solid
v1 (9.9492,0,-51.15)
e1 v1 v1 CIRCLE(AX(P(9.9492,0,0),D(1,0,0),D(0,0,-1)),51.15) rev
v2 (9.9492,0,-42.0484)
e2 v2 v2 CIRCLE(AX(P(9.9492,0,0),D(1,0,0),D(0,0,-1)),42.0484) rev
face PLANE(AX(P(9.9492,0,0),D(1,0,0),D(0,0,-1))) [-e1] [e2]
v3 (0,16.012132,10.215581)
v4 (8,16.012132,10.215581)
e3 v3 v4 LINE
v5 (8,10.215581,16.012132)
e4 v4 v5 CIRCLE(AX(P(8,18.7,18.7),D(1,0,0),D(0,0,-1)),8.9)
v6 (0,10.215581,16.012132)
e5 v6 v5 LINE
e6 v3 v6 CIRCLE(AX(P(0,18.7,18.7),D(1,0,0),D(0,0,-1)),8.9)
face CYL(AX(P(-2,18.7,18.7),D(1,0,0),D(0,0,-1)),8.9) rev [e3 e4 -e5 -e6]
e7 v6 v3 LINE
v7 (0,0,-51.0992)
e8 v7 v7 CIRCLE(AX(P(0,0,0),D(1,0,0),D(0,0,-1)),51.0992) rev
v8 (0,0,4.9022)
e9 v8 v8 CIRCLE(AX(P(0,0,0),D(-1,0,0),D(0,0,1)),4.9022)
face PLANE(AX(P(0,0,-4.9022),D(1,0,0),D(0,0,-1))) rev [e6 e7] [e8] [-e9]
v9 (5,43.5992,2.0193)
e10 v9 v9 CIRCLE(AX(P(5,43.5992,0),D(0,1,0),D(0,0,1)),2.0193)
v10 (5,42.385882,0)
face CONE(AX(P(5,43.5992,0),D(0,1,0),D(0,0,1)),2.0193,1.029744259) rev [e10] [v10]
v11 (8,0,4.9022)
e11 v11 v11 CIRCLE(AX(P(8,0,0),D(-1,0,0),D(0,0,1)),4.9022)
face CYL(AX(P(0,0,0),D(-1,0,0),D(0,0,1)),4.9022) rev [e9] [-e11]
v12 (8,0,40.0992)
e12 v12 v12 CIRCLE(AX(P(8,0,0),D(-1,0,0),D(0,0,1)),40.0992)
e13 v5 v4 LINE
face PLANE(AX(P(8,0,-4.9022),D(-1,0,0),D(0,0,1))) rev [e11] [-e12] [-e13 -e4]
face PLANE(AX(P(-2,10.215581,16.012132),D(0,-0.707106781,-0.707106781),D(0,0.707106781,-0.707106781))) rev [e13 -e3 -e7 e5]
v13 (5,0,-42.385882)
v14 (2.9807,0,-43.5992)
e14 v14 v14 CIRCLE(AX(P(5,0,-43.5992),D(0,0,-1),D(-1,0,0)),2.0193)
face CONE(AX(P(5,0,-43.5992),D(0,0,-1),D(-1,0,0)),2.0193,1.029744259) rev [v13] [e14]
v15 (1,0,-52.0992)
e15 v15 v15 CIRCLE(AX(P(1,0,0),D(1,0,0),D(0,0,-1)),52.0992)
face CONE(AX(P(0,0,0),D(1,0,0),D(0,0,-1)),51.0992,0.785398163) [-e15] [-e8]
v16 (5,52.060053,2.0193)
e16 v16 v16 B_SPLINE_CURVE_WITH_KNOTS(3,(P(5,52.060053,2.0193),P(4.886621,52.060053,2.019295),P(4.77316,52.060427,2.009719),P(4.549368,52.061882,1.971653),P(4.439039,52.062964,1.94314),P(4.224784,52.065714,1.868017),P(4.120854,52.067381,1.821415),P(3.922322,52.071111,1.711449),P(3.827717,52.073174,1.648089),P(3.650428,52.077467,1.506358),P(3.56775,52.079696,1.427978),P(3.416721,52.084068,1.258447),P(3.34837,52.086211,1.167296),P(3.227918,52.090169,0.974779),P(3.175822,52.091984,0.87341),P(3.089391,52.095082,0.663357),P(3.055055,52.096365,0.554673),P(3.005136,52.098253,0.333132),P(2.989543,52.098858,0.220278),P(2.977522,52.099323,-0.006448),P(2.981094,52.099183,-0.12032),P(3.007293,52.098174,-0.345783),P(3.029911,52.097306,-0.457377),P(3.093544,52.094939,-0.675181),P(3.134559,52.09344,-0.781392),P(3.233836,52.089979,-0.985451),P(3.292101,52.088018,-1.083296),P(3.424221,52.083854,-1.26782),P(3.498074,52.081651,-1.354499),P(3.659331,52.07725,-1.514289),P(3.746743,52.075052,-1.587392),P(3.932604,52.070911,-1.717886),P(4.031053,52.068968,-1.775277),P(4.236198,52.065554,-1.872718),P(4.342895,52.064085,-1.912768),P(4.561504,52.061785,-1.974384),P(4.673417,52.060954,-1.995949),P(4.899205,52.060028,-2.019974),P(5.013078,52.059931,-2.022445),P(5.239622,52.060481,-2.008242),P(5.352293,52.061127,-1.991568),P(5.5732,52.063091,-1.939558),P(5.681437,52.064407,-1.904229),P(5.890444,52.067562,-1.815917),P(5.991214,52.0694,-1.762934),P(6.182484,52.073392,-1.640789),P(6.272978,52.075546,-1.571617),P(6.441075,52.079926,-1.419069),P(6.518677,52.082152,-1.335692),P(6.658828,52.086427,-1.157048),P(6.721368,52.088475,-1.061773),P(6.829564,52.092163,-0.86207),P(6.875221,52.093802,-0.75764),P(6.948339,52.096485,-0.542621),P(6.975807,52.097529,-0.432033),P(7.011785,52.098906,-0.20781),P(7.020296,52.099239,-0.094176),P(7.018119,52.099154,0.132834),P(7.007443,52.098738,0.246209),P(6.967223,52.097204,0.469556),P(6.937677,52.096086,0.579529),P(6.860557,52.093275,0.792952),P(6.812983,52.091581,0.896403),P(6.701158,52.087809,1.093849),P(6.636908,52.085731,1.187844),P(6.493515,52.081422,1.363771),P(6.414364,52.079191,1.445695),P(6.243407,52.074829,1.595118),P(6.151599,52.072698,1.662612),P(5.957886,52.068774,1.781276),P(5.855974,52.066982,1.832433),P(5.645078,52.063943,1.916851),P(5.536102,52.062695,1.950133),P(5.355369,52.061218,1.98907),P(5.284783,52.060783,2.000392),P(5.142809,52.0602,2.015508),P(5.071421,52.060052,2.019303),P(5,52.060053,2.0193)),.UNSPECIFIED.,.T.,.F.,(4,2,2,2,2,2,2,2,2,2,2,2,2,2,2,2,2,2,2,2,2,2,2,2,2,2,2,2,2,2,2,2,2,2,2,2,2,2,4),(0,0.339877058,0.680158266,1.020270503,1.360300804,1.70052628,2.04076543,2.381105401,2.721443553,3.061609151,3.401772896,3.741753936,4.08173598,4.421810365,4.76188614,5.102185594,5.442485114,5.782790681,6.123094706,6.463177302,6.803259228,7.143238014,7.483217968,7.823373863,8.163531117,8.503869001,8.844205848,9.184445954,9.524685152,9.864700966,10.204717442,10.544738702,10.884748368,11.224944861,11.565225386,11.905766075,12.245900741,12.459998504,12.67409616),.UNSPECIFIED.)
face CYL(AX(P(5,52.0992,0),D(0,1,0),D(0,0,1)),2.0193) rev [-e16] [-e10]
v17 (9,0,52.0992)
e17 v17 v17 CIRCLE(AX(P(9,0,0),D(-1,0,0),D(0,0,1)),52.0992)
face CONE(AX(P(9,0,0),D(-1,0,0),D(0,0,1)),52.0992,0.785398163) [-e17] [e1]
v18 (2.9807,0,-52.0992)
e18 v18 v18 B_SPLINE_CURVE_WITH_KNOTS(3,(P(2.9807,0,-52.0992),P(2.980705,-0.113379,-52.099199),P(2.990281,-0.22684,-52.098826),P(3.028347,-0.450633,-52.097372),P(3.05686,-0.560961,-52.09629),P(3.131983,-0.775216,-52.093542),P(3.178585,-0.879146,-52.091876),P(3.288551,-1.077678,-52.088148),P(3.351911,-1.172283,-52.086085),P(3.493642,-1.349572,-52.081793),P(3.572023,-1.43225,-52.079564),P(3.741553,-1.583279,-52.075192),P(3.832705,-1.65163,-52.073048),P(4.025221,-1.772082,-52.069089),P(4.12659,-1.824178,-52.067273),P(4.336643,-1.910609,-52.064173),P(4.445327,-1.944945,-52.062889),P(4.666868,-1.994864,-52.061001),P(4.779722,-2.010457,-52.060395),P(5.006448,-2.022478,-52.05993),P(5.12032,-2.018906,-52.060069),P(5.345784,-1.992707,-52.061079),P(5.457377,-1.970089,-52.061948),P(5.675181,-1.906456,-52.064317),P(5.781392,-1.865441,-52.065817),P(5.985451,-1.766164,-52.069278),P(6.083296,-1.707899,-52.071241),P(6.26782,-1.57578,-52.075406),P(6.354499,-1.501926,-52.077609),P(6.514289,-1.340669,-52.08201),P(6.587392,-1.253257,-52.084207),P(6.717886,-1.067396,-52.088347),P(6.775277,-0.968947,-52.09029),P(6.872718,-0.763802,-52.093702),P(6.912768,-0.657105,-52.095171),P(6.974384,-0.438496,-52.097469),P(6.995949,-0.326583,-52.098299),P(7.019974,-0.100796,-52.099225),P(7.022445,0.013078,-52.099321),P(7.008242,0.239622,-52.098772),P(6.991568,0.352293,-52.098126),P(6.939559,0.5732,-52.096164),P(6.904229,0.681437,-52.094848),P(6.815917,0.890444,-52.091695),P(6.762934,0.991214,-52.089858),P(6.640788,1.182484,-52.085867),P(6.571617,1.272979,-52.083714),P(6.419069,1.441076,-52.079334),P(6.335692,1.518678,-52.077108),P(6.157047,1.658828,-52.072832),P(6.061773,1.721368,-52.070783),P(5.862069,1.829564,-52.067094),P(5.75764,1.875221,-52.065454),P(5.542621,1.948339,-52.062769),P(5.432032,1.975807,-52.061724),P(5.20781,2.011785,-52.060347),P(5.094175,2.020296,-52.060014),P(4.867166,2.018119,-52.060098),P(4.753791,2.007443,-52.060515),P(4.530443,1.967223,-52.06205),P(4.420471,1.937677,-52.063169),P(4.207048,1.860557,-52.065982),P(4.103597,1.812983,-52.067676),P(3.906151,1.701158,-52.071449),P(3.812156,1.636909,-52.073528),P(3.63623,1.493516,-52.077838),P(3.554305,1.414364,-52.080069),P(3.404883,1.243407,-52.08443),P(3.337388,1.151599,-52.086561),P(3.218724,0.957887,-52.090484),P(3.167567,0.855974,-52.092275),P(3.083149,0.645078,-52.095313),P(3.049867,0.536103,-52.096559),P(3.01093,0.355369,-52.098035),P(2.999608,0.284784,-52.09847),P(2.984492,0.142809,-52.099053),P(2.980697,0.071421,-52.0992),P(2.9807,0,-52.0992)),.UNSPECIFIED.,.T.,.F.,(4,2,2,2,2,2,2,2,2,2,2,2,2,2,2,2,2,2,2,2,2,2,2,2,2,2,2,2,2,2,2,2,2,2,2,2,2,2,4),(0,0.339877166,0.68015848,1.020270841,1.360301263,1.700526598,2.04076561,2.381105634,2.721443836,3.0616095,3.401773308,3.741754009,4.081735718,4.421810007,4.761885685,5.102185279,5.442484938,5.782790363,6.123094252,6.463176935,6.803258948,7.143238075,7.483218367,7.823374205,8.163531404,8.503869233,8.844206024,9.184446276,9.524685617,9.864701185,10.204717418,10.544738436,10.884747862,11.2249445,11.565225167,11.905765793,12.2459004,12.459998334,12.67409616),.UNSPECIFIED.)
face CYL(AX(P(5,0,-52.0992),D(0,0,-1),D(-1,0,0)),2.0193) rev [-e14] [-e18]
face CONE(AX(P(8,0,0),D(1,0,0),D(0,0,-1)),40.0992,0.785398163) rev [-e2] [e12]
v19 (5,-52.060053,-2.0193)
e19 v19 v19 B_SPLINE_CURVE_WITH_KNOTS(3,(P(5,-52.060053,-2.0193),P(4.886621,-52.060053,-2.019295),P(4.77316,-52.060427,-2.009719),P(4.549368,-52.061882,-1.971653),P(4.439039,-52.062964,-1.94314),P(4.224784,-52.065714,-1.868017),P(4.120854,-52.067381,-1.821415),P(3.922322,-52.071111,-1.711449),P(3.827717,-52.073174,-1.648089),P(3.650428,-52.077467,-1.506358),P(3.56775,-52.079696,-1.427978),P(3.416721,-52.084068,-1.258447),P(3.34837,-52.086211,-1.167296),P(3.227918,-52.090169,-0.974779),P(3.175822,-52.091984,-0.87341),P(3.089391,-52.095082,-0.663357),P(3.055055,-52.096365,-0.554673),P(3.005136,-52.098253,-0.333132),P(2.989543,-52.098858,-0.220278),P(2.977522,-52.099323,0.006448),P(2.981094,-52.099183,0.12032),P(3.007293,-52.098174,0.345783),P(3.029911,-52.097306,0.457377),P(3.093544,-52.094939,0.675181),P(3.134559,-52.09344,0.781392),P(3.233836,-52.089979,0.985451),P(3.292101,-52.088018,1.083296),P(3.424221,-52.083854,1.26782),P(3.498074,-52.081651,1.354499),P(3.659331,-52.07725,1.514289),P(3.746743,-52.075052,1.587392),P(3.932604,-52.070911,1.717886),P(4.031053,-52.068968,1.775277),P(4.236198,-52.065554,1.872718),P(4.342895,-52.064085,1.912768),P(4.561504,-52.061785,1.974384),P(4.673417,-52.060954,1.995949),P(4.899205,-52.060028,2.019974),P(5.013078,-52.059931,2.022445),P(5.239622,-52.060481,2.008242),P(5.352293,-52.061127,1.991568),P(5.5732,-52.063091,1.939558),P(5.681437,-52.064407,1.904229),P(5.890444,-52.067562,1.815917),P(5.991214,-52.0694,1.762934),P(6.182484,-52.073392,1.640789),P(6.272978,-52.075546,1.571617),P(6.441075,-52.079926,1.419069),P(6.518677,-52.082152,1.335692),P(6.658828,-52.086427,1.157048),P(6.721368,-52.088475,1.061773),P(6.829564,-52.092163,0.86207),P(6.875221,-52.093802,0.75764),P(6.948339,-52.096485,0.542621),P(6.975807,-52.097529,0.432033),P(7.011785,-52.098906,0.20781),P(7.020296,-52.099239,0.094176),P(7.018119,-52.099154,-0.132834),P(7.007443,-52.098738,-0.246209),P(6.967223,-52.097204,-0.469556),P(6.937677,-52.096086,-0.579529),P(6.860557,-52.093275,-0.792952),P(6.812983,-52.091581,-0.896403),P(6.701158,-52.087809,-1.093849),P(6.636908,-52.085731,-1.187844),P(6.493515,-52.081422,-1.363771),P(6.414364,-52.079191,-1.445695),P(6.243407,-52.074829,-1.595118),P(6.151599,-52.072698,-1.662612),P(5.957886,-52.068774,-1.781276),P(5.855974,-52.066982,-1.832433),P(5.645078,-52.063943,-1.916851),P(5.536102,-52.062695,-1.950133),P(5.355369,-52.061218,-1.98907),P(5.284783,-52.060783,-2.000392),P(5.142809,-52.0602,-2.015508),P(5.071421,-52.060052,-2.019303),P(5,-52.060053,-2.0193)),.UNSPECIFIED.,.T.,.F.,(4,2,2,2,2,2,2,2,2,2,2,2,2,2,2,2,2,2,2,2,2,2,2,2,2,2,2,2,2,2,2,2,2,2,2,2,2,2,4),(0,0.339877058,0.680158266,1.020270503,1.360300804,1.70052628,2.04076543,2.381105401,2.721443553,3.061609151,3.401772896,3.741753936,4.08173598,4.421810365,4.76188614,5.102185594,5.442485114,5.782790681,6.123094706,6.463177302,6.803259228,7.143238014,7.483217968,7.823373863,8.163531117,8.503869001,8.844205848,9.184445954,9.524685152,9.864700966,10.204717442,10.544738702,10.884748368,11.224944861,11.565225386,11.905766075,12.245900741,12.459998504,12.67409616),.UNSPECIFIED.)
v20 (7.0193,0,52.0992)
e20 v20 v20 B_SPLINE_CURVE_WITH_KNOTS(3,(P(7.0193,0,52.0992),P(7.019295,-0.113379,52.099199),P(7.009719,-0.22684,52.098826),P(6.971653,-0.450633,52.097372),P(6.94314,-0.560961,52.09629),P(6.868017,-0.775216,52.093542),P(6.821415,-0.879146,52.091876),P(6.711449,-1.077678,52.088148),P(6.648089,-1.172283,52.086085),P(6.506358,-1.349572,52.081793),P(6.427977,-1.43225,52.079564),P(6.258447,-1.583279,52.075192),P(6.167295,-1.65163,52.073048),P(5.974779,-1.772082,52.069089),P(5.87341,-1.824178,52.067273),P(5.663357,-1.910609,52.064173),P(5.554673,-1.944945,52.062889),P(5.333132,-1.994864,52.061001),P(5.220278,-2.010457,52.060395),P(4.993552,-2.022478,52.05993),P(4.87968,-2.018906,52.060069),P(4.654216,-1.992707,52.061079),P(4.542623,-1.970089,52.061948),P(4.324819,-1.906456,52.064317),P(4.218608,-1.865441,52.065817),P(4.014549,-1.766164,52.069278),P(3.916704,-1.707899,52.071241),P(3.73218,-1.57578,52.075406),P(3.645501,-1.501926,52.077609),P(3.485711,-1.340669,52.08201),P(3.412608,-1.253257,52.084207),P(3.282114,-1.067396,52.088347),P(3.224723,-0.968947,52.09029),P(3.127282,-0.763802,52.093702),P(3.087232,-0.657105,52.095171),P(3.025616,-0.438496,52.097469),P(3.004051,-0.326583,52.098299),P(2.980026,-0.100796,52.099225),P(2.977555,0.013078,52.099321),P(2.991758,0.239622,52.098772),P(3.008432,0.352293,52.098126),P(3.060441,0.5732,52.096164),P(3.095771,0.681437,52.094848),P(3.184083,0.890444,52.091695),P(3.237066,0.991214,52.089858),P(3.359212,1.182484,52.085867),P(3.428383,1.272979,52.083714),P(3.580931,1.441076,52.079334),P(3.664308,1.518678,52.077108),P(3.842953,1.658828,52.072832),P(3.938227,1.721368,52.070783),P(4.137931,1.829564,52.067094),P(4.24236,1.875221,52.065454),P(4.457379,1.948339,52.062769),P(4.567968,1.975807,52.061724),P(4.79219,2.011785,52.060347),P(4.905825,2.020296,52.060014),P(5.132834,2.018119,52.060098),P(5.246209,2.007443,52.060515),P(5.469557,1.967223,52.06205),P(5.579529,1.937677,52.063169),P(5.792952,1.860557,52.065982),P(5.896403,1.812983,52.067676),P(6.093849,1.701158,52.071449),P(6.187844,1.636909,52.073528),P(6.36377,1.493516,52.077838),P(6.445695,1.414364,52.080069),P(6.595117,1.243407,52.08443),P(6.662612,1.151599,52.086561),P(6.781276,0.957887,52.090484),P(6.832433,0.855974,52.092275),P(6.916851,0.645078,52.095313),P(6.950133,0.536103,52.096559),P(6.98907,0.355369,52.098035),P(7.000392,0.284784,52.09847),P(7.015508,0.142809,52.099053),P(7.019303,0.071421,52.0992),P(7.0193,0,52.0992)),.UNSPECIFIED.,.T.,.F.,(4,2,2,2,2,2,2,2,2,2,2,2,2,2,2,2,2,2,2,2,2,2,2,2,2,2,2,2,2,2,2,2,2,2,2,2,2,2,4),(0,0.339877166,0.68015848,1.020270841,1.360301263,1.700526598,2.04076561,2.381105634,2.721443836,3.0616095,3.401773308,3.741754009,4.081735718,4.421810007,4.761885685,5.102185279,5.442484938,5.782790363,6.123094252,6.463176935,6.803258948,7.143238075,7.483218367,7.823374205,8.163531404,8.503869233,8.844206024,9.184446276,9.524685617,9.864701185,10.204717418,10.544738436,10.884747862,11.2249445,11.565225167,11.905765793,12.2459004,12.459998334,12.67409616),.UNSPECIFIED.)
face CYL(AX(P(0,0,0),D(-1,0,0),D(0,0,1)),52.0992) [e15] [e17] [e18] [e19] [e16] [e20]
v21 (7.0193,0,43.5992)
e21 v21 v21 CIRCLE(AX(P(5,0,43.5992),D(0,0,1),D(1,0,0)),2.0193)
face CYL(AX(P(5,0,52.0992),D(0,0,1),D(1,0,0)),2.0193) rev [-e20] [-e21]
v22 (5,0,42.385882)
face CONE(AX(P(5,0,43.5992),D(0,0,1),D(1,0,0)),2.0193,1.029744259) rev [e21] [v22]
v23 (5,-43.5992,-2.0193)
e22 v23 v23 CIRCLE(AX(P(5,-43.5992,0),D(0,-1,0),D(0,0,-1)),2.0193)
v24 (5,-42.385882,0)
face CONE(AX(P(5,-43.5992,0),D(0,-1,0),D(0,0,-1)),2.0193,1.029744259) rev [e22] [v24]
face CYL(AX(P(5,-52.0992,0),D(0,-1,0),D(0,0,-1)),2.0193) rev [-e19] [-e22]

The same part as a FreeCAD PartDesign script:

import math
import FreeCAD as App
import Part
import Sketcher
Q = App.Units.Quantity


def edges_at(feature, points):
    """Names of the edges that pass closest to the given points."""
    edges = feature.Shape.Edges
    near = lambda p: min(range(len(edges)), key=lambda i: edges[i].distToShape(Part.Vertex(*p))[0])
    return sorted({f"Edge{near(p) + 1}" for p in points})

doc = App.newDocument("Part")
body = doc.addObject("PartDesign::Body", "Body")

# Sketch on XZ plane
sketch1 = body.newObject("Sketcher::SketchObject", "Sketch")
sketch1.AttachmentSupport = (doc.getObject("XZ_Plane"), [""])
sketch1.MapMode = "FlatFace"
sketch1.addGeometry([
    Part.LineSegment(App.Vector(0, -52.1, 0), App.Vector(0, -4.9, 0)),  # 0
    Part.LineSegment(App.Vector(0, -4.9, 0), App.Vector(8, -4.9, 0)),  # 1
    Part.LineSegment(App.Vector(8, -4.9, 0), App.Vector(8, -40.1, 0)),  # 2
    Part.LineSegment(App.Vector(8, -40.1, 0), App.Vector(10, -42.1, 0)),  # 3
    Part.LineSegment(App.Vector(10, -42.1, 0), App.Vector(10, -52.1, 0)),  # 4
    Part.LineSegment(App.Vector(10, -52.1, 0), App.Vector(0, -52.1, 0)),  # 5
], False)
sketch1.addConstraint([
    Sketcher.Constraint("Coincident", 0, 2, 1, 1),
    Sketcher.Constraint("Coincident", 1, 2, 2, 1),
    Sketcher.Constraint("Coincident", 2, 2, 3, 1),
    Sketcher.Constraint("Coincident", 3, 2, 4, 1),
    Sketcher.Constraint("Coincident", 4, 2, 5, 1),
    Sketcher.Constraint("Coincident", 5, 2, 0, 1),
    Sketcher.Constraint("Vertical", 0),
    Sketcher.Constraint("Horizontal", 1),
    Sketcher.Constraint("Vertical", 2),
    Sketcher.Constraint("Vertical", 4),
    Sketcher.Constraint("Horizontal", 5),
    Sketcher.Constraint("PointOnObject", 0, 2, -2),
    Sketcher.Constraint("Equal", 5, 4),
    Sketcher.Constraint("DistanceX", 1, 1, 1, 2, Q("8 mm")),
    Sketcher.Constraint("DistanceX", 5, 2, 5, 1, Q("10 mm")),
    Sketcher.Constraint("Angle", 3, Q("-45 deg")),
    Sketcher.Constraint("DistanceY", 0, 1, 0, 2, Q("47.197 mm")),
    Sketcher.Constraint("DistanceY", 0, 2, -1, 1, Q("4.9022 mm")),
])
revolution = body.newObject("PartDesign::Revolution", "Revolution")
revolution.Profile = sketch1
revolution.ReferenceAxis = (sketch1, ["H_Axis"])
revolution.Angle = 360

# Sketch on YZ plane
sketch2 = body.newObject("Sketcher::SketchObject", "Sketch001")
sketch2.AttachmentSupport = (doc.getObject("YZ_Plane"), [""])
sketch2.MapMode = "FlatFace"
sketch2.AttachmentOffset = App.Placement(App.Vector(0, 0, 8), App.Rotation())
sketch2.addGeometry([
    Part.LineSegment(App.Vector(10, 16, 0), App.Vector(16, 10, 0)),
    Part.ArcOfCircle(Part.Circle(App.Vector(19, 19, 0), App.Vector(0, 0, 1), 9), math.radians(-108), math.radians(45)),
    Part.ArcOfCircle(Part.Circle(App.Vector(19, 19, 0), App.Vector(0, 0, 1), 9), math.radians(45), math.radians(198)),
], False)
sketch2.addConstraint([
    Sketcher.Constraint("Coincident", 0, 2, 1, 1),
    Sketcher.Constraint("Tangent", 1, 2, 2, 1),
    Sketcher.Constraint("Coincident", 2, 2, 0, 1),
    Sketcher.Constraint("Equal", 1, 2),
    Sketcher.Constraint("Radius", 1, Q("8.9 mm")),
    Sketcher.Constraint("Angle", 0, Q("-45 deg")),
    Sketcher.Constraint("DistanceX", -1, 1, 1, 3, Q("18.7 mm")),
    Sketcher.Constraint("DistanceY", -1, 1, 1, 3, Q("18.7 mm")),
    Sketcher.Constraint("Distance", 0, Q("8.197561 mm")),
    Sketcher.Constraint("DistanceX", -1, 1, 1, 2, Q("24.99325 mm")),
])
pocket1 = body.newObject("PartDesign::Pocket", "Pocket")
pocket1.Profile = sketch2
pocket1.Length = 10

# Sketch on YZ plane
sketch3 = body.newObject("Sketcher::SketchObject", "Sketch002")
sketch3.AttachmentSupport = (doc.getObject("YZ_Plane"), [""])
sketch3.MapMode = "FlatFace"
sketch3.AttachmentOffset = App.Placement(App.Vector(0, 0, 5), App.Rotation())
sketch3.addGeometry([
    Part.LineSegment(App.Vector(0, 42.4, 0), App.Vector(0, 52.1, 0)),
    Part.LineSegment(App.Vector(0, 52.1, 0), App.Vector(-2, 52.1, 0)),
    Part.LineSegment(App.Vector(-2, 52.1, 0), App.Vector(-2, 43.6, 0)),
    Part.LineSegment(App.Vector(-2, 43.6, 0), App.Vector(0, 42.4, 0)),
], False)
sketch3.addConstraint([
    Sketcher.Constraint("Coincident", 0, 2, 1, 1),
    Sketcher.Constraint("Coincident", 1, 2, 2, 1),
    Sketcher.Constraint("Coincident", 2, 2, 3, 1),
    Sketcher.Constraint("Coincident", 3, 2, 0, 1),
    Sketcher.Constraint("Vertical", 0),
    Sketcher.Constraint("Horizontal", 1),
    Sketcher.Constraint("Vertical", 2),
    Sketcher.Constraint("PointOnObject", 0, 2, -2),
    Sketcher.Constraint("Angle", 3, Q("-31 deg")),
    Sketcher.Constraint("DistanceY", 2, 2, 2, 1, Q("8.5 mm")),
    Sketcher.Constraint("DistanceX", 1, 2, 1, 1, Q("2.0193 mm")),
    Sketcher.Constraint("DistanceY", -1, 1, 0, 2, Q("52.0992 mm")),
])
groove = body.newObject("PartDesign::Groove", "Groove")
groove.Profile = sketch3
groove.ReferenceAxis = (sketch3, ["V_Axis"])
groove.Angle = 360
doc.recompute()

polarpattern = body.newObject("PartDesign::PolarPattern", "PolarPattern")
polarpattern.Originals = [groove]
polarpattern.Axis = (doc.getObject("X_Axis"), [""])
polarpattern.Angle = 360
polarpattern.Occurrences = 4
body.Tip = polarpattern
doc.recompute()

chamfer = body.newObject("PartDesign::Chamfer", "Chamfer")
chamfer.Base = (polarpattern, edges_at(polarpattern, [(10, 0, 52.099)]))
chamfer.Size = 1
doc.recompute()

chamfer2 = body.newObject("PartDesign::Chamfer", "Chamfer001")
chamfer2.Base = (chamfer, edges_at(chamfer, [(0, 0, 52.099)]))
chamfer2.Size = 1

# Sketch on YZ plane
sketch4 = body.newObject("Sketcher::SketchObject", "Sketch003")
sketch4.AttachmentSupport = (doc.getObject("YZ_Plane"), [""])
sketch4.MapMode = "FlatFace"
sketch4.AttachmentOffset = App.Placement(App.Vector(0, 0, 10), App.Rotation())
sketch4.addGeometry(Part.Circle(App.Vector(0, 0, 0), App.Vector(0, 0, 1), 52), False)
sketch4.addConstraint([
    Sketcher.Constraint("Coincident", 0, 3, -1, 1),
    Sketcher.Constraint("Diameter", 0, Q("104.1984 mm")),
])
pocket2 = body.newObject("PartDesign::Pocket", "Pocket001")
pocket2.Profile = sketch4
pocket2.Length = 0.0508

doc.recompute()
